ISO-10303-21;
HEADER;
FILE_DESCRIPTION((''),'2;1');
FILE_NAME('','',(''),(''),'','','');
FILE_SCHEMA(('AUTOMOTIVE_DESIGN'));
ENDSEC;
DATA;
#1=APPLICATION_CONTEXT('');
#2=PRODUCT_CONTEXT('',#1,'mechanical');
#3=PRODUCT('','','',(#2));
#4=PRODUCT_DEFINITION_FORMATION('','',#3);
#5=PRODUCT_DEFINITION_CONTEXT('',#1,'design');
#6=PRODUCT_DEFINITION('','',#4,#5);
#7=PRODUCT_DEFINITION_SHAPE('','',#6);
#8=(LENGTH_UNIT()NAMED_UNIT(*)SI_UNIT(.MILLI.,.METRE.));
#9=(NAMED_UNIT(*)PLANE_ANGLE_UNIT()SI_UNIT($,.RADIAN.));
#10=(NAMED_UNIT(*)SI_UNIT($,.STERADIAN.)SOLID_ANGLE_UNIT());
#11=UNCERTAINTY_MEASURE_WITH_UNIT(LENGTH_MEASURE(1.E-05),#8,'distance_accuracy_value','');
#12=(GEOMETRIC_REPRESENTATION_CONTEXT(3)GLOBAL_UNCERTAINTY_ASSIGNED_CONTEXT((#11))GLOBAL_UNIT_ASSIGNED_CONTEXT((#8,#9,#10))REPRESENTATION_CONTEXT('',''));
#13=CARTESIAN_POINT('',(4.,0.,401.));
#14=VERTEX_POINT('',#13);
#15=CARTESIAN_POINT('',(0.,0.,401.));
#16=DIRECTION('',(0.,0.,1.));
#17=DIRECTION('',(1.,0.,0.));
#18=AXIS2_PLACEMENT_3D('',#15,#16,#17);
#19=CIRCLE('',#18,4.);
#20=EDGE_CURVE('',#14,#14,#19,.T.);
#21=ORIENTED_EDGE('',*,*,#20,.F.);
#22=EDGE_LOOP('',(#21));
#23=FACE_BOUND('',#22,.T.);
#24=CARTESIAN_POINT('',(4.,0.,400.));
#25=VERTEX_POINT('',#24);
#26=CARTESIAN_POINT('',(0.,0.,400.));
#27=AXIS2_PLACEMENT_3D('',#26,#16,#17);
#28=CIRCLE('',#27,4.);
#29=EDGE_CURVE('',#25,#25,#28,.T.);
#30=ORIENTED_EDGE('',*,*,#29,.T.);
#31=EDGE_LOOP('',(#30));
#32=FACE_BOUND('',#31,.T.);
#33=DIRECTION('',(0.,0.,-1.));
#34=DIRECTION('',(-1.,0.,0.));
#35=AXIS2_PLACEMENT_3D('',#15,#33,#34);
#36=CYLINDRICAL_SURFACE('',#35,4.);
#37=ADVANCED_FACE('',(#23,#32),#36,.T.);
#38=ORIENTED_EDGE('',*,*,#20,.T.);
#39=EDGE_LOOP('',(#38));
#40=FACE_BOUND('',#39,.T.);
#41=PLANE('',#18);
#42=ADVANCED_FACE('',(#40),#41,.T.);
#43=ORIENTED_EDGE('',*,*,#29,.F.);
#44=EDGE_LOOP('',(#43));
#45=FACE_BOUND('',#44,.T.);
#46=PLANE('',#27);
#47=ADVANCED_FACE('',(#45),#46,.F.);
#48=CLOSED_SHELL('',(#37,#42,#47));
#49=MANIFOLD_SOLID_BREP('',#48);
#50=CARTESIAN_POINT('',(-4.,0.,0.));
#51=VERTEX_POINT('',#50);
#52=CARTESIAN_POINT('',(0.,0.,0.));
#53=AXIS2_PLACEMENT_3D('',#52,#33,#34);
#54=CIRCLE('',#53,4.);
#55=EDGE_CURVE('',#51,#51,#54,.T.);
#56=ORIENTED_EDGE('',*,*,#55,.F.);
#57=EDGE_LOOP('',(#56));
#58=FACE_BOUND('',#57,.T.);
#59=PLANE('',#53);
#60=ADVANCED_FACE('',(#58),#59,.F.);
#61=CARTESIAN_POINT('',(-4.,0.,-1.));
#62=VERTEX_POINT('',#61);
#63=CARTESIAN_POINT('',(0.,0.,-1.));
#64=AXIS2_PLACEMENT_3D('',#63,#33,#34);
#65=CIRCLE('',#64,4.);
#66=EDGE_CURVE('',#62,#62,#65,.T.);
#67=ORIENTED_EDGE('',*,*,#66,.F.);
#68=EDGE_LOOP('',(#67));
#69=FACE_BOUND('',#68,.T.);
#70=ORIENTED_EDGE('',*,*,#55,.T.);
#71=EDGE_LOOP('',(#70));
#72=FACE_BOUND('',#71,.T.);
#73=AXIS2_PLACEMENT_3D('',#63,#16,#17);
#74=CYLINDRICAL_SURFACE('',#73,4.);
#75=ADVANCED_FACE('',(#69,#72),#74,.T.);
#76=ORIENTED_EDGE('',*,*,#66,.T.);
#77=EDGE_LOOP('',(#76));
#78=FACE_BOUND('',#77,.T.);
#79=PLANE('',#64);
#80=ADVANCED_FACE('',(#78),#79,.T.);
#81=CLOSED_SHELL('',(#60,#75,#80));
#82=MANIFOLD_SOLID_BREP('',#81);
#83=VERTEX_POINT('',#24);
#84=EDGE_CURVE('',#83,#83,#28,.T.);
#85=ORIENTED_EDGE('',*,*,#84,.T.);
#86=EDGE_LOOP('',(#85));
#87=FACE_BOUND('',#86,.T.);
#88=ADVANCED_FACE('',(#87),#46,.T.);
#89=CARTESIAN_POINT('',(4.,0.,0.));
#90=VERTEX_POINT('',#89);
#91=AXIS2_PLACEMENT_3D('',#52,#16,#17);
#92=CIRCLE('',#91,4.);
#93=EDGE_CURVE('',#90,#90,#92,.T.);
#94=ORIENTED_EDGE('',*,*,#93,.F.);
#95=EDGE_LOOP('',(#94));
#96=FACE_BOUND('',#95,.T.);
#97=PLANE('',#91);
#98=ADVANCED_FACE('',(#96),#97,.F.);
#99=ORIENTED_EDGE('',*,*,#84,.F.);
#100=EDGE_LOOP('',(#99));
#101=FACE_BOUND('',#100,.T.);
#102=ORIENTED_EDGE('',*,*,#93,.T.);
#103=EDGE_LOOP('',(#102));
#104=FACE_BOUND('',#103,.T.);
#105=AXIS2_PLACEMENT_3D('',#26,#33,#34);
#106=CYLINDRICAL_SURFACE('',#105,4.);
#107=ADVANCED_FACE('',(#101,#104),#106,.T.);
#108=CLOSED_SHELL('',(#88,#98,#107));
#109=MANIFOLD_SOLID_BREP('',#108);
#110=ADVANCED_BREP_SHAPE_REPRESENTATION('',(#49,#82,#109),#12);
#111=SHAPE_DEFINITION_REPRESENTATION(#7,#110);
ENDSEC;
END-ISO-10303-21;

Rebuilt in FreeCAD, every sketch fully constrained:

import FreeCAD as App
import Part
import Sketcher

doc = App.newDocument("Part")
body = doc.addObject("PartDesign::Body", "Body")

# Sketch on XY plane
sketch1 = body.newObject("Sketcher::SketchObject", "Sketch")
sketch1.AttachmentSupport = (doc.getObject("XY_Plane"), [""])
sketch1.MapMode = "FlatFace"
sketch1.addGeometry(Part.Circle(App.Vector(0, 0, 0), App.Vector(0, 0, 1), 4), False)
sketch1.addConstraint([
    Sketcher.Constraint("Coincident", 0, 3, -1, 1),
    Sketcher.Constraint("Diameter", 0, 8.0),
])
pad1 = body.newObject("PartDesign::Pad", "Pad")
pad1.Profile = sketch1
pad1.Length = 400
body2 = doc.addObject("PartDesign::Body", "Body001")

# Sketch on XY plane
sketch2 = body2.newObject("Sketcher::SketchObject", "Sketch001")
sketch2.AttachmentSupport = (doc.getObject("XY_Plane001"), [""])
sketch2.MapMode = "FlatFace"
sketch2.addGeometry(Part.Circle(App.Vector(0, 0, 0), App.Vector(0, 0, 1), 4), False)
sketch2.addConstraint([
    Sketcher.Constraint("Coincident", 0, 3, -1, 1),
    Sketcher.Constraint("Diameter", 0, 8.0),
])
pad2 = body2.newObject("PartDesign::Pad", "Pad001")
pad2.Profile = sketch2
pad2.Length = 1
pad2.Reversed = True
body3 = doc.addObject("PartDesign::Body", "Body002")

# Sketch on XY plane
sketch3 = body3.newObject("Sketcher::SketchObject", "Sketch002")
sketch3.AttachmentSupport = (doc.getObject("XY_Plane002"), [""])
sketch3.MapMode = "FlatFace"
sketch3.AttachmentOffset = App.Placement(App.Vector(0, 0, 400), App.Rotation())
sketch3.addGeometry(Part.Circle(App.Vector(0, 0, 0), App.Vector(0, 0, 1), 4), False)
sketch3.addConstraint([
    Sketcher.Constraint("Coincident", 0, 3, -1, 1),
    Sketcher.Constraint("Diameter", 0, 8.0),
])
pad3 = body3.newObject("PartDesign::Pad", "Pad002")
pad3.Profile = sketch3
pad3.Length = 1

doc.recompute()
